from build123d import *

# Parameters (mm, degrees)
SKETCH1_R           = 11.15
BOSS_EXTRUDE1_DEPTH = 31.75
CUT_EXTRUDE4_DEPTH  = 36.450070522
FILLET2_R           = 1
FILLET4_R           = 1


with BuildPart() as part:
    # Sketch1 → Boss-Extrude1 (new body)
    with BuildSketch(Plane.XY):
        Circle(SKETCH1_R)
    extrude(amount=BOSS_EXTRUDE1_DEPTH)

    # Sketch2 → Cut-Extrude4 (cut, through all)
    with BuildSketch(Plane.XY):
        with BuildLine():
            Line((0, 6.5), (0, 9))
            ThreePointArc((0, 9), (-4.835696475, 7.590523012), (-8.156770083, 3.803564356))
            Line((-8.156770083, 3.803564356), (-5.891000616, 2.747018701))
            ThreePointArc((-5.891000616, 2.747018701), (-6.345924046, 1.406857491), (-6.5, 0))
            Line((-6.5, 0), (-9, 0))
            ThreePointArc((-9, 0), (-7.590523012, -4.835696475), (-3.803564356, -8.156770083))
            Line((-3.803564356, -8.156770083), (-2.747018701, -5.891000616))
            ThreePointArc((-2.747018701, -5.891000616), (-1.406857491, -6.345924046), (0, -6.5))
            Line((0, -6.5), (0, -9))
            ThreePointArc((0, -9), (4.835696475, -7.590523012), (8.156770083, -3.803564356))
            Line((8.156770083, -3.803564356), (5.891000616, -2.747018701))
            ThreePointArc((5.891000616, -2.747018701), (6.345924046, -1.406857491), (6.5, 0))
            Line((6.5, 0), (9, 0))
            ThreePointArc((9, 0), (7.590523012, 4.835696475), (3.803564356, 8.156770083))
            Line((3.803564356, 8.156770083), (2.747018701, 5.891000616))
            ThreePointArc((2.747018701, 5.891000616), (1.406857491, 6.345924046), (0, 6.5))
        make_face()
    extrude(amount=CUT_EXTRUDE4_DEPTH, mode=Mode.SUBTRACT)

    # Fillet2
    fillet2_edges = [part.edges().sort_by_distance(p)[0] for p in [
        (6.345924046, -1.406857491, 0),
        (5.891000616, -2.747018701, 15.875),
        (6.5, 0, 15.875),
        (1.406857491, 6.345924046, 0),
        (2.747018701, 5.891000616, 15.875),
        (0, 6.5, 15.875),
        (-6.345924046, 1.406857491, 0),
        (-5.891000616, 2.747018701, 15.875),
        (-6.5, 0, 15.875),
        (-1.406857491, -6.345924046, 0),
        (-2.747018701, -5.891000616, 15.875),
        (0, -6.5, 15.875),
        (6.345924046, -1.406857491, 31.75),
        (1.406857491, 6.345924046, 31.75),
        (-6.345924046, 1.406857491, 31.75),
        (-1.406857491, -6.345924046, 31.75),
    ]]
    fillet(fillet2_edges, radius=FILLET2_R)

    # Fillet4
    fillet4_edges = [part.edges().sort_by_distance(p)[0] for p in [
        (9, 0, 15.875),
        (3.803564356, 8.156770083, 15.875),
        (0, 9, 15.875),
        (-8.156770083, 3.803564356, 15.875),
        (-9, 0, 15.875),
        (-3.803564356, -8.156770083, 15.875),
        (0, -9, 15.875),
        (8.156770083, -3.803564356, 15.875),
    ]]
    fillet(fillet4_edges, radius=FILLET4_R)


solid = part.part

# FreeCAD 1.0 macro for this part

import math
import FreeCAD as App
import Part
import Sketcher
from FreeCAD import Vector
Q = App.Units.Quantity


def edges_at(feature, points):
    """Names of the edges that pass closest to the given points."""
    edges = feature.Shape.Edges
    near = lambda p: min(range(len(edges)), key=lambda i: edges[i].distToShape(Part.Vertex(*p))[0])
    return sorted({f"Edge{near(p) + 1}" for p in points})

doc = App.newDocument("Part")
body = doc.addObject("PartDesign::Body", "Body")

# Sketch on XY plane
sketch1 = doc.addObject("Sketcher::SketchObject", "Sketch")
body.addObject(sketch1)
sketch1.AttachmentSupport = (doc.XY_Plane, [""])
sketch1.MapMode = "FlatFace"
sketch1.addGeometry(Part.Circle(Vector(0, 0, 0), Vector(0, 0, 1), 11), False)
sketch1.addConstraint([
    Sketcher.Constraint("Coincident", 0, 3, -1, 1),
    Sketcher.Constraint("Diameter", 0, Q("22.3 mm")),
])
pad1 = doc.addObject("PartDesign::Pad", "Pad")
body.addObject(pad1)
pad1.Profile = sketch1
pad1.Length = 31.75

# Sketch on XY plane
sketch2 = doc.addObject("Sketcher::SketchObject", "Sketch001")
body.addObject(sketch2)
sketch2.AttachmentSupport = (doc.XY_Plane, [""])
sketch2.MapMode = "FlatFace"
sketch2.addGeometry([
    Part.LineSegment(Vector(0, 6.5, 0), Vector(0, 9, 0)),  # 0
    Part.ArcOfCircle(Part.Circle(Vector(0, 0, 0), Vector(0, 0, 1), 9), math.radians(90), math.radians(155)),  # 1
    Part.LineSegment(Vector(-8.2, 3.8, 0), Vector(-5.9, 2.7, 0)),  # 2
    Part.ArcOfCircle(Part.Circle(Vector(0, 0, 0), Vector(0, 0, 1), 6.5), math.radians(155), math.radians(180)),  # 3
    Part.LineSegment(Vector(-6.5, 0, 0), Vector(-9, 0, 0)),  # 4
    Part.ArcOfCircle(Part.Circle(Vector(0, 0, 0), Vector(0, 0, 1), 9), math.radians(-180), math.radians(-115)),  # 5
    Part.LineSegment(Vector(-3.8, -8.2, 0), Vector(-2.7, -5.9, 0)),  # 6
    Part.ArcOfCircle(Part.Circle(Vector(0, 0, 0), Vector(0, 0, 1), 6.5), math.radians(-115), math.radians(-90)),  # 7
    Part.LineSegment(Vector(0, -6.5, 0), Vector(0, -9, 0)),  # 8
    Part.ArcOfCircle(Part.Circle(Vector(0, 0, 0), Vector(0, 0, 1), 9), math.radians(-90), math.radians(-25)),  # 9
    Part.LineSegment(Vector(8.2, -3.8, 0), Vector(5.9, -2.7, 0)),  # 10
    Part.ArcOfCircle(Part.Circle(Vector(0, 0, 0), Vector(0, 0, 1), 6.5), math.radians(-25), math.radians(0)),  # 11
    Part.LineSegment(Vector(6.5, 0, 0), Vector(9, 0, 0)),  # 12
    Part.ArcOfCircle(Part.Circle(Vector(0, 0, 0), Vector(0, 0, 1), 9), math.radians(0), math.radians(65)),  # 13
    Part.LineSegment(Vector(3.8, 8.2, 0), Vector(2.7, 5.9, 0)),  # 14
    Part.ArcOfCircle(Part.Circle(Vector(0, 0, 0), Vector(0, 0, 1), 6.5), math.radians(65), math.radians(90)),  # 15
], False)
sketch2.addConstraint([
    Sketcher.Constraint("Coincident", 0, 2, 1, 1),
    Sketcher.Constraint("Coincident", 1, 2, 2, 1),
    Sketcher.Constraint("Coincident", 2, 2, 3, 1),
    Sketcher.Constraint("Coincident", 3, 2, 4, 1),
    Sketcher.Constraint("Coincident", 4, 2, 5, 1),
    Sketcher.Constraint("Coincident", 5, 2, 6, 1),
    Sketcher.Constraint("Coincident", 6, 2, 7, 1),
    Sketcher.Constraint("Coincident", 7, 2, 8, 1),
    Sketcher.Constraint("Coincident", 8, 2, 9, 1),
    Sketcher.Constraint("Coincident", 9, 2, 10, 1),
    Sketcher.Constraint("Coincident", 10, 2, 11, 1),
    Sketcher.Constraint("Coincident", 11, 2, 12, 1),
    Sketcher.Constraint("Coincident", 12, 2, 13, 1),
    Sketcher.Constraint("Coincident", 13, 2, 14, 1),
    Sketcher.Constraint("Coincident", 14, 2, 15, 1),
    Sketcher.Constraint("Coincident", 15, 2, 0, 1),
    Sketcher.Constraint("Vertical", 0),
    Sketcher.Constraint("Horizontal", 4),
    Sketcher.Constraint("Vertical", 8),
    Sketcher.Constraint("Horizontal", 12),
    Sketcher.Constraint("Coincident", 1, 3, -1, 1),
    Sketcher.Constraint("Coincident", 3, 3, -1, 1),
    Sketcher.Constraint("Coincident", 5, 3, -1, 1),
    Sketcher.Constraint("Coincident", 7, 3, -1, 1),
    Sketcher.Constraint("Coincident", 9, 3, -1, 1),
    Sketcher.Constraint("Coincident", 11, 3, -1, 1),
    Sketcher.Constraint("Coincident", 13, 3, -1, 1),
    Sketcher.Constraint("Coincident", 15, 3, -1, 1),
    Sketcher.Constraint("Equal", 1, 5),
    Sketcher.Constraint("Equal", 3, 7),
    Sketcher.Constraint("Equal", 5, 9),
    Sketcher.Constraint("Equal", 7, 11),
    Sketcher.Constraint("Equal", 9, 13),
    Sketcher.Constraint("Equal", 11, 15),
    Sketcher.Constraint("PointOnObject", 0, 2, -2),
    Sketcher.Constraint("PointOnObject", 3, 2, -1),
    Sketcher.Constraint("PointOnObject", 7, 2, -2),
    Sketcher.Constraint("PointOnObject", 11, 2, -1),
    Sketcher.Constraint("Perpendicular", 2, 6),
    Sketcher.Constraint("Perpendicular", 6, 10),
    Sketcher.Constraint("Perpendicular", 10, 14),
    Sketcher.Constraint("Radius", 1, Q("9 mm")),
    Sketcher.Constraint("Radius", 3, Q("6.5 mm")),
    Sketcher.Constraint("Angle", 2, Q("-25 deg")),
    Sketcher.Constraint("DistanceX", 2, 2, -1, 1, Q("5.891001 mm")),
    Sketcher.Constraint("DistanceY", 6, 2, -1, 1, Q("5.891001 mm")),
    Sketcher.Constraint("DistanceX", -1, 1, 10, 2, Q("5.891001 mm")),
    Sketcher.Constraint("DistanceY", -1, 1, 14, 2, Q("5.891001 mm")),
])
pocket1 = doc.addObject("PartDesign::Pocket", "Pocket")
body.addObject(pocket1)
pocket1.Profile = sketch2
pocket1.Type = "ThroughAll"
pocket1.Reversed = True
doc.recompute()

fillet = doc.addObject("PartDesign::Fillet", "Fillet")
body.addObject(fillet)
fillet.Base = (pocket1, edges_at(pocket1, [
    (6.346, -1.407, 0),
    (5.891, -2.747, 15.875),
    (6.5, 0, 15.875),
    (1.407, 6.346, 0),
    (2.747, 5.891, 15.875),
    (0, 6.5, 15.875),
    (-6.346, 1.407, 0),
    (-5.891, 2.747, 15.875),
    (-6.5, 0, 15.875),
    (-1.407, -6.346, 0),
    (-2.747, -5.891, 15.875),
    (0, -6.5, 15.875),
    (6.346, -1.407, 31.75),
    (1.407, 6.346, 31.75),
    (-6.346, 1.407, 31.75),
    (-1.407, -6.346, 31.75),
]))
fillet.Radius = 1
doc.recompute()

fillet2 = doc.addObject("PartDesign::Fillet", "Fillet001")
body.addObject(fillet2)
fillet2.Base = (fillet, edges_at(fillet, [
    (9, 0, 15.875),
    (3.804, 8.157, 15.875),
    (0, 9, 15.875),
    (-8.157, 3.804, 15.875),
    (-9, 0, 15.875),
    (-3.804, -8.157, 15.875),
    (0, -9, 15.875),
    (8.157, -3.804, 15.875),
]))
fillet2.Radius = 1

doc.recompute()
